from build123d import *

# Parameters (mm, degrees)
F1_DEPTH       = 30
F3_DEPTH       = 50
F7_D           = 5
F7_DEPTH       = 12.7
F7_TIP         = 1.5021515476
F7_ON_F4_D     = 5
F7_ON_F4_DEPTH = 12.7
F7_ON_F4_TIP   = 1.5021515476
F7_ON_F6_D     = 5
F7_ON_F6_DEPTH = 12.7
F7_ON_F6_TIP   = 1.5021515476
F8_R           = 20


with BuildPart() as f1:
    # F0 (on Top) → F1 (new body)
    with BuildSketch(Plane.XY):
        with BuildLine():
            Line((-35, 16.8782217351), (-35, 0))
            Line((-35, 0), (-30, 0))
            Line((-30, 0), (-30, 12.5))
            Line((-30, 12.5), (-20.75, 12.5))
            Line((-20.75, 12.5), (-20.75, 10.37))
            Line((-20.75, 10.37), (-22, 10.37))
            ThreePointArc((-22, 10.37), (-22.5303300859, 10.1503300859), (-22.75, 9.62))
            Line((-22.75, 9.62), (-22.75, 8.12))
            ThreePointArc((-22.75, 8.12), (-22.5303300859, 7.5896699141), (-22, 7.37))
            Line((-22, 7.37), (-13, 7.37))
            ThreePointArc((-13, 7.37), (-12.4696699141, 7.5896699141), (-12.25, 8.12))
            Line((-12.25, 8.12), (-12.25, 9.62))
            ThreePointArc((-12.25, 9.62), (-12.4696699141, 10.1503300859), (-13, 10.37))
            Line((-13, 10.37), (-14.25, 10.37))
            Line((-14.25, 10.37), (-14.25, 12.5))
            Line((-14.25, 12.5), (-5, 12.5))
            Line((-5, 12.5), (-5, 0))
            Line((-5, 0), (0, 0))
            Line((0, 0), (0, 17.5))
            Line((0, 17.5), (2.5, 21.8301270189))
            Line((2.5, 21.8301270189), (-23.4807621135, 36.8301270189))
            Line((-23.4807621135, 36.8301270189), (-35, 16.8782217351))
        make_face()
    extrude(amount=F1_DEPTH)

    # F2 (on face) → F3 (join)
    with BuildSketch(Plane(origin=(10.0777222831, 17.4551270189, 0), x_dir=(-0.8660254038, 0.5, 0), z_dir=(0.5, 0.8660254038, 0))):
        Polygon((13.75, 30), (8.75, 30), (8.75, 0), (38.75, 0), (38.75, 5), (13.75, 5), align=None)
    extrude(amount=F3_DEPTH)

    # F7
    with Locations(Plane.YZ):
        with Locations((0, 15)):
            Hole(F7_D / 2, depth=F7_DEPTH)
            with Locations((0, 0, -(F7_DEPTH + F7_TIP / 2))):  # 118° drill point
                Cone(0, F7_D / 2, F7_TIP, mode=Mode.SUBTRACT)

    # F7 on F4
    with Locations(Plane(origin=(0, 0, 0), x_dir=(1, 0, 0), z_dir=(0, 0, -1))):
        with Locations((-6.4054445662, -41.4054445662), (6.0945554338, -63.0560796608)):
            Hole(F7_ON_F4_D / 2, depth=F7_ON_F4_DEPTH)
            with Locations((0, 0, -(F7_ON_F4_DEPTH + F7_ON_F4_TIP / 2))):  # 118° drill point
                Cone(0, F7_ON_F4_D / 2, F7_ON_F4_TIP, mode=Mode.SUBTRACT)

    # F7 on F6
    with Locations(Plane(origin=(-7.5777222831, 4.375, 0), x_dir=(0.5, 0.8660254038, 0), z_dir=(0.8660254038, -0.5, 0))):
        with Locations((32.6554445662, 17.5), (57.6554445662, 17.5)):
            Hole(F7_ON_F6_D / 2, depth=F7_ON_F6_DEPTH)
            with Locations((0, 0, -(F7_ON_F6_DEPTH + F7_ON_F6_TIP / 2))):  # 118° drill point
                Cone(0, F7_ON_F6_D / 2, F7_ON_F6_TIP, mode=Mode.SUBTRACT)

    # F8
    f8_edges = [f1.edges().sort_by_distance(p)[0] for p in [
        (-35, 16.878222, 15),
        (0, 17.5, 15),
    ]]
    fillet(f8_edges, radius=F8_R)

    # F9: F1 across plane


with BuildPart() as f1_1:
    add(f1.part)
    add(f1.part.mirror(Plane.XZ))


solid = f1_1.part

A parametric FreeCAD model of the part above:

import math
import FreeCAD as App
import Part
import Sketcher
from FreeCAD import Vector
Q = App.Units.Quantity


def edges_at(feature, points):
    """Names of the edges that pass closest to the given points."""
    edges = feature.Shape.Edges
    near = lambda p: min(range(len(edges)), key=lambda i: edges[i].distToShape(Part.Vertex(*p))[0])
    return sorted({f"Edge{near(p) + 1}" for p in points})

doc = App.newDocument("Part")
body = doc.addObject("PartDesign::Body", "Body")

# Sketch on XY plane
sketch1 = body.newObject("Sketcher::SketchObject", "Sketch")
sketch1.AttachmentSupport = (doc.getObject("XY_Plane"), [""])
sketch1.MapMode = "FlatFace"
sketch1.addGeometry(Part.LineSegment(Vector(-35, 16.9, 0), Vector(-35, 0, 0)), False)
sketch1.addGeometry(Part.LineSegment(Vector(-35, 0, 0), Vector(-30, 0, 0)), False)
sketch1.addGeometry(Part.LineSegment(Vector(-30, 0, 0), Vector(-30, 12.5, 0)), False)
sketch1.addGeometry(Part.LineSegment(Vector(-30, 12.5, 0), Vector(-20.8, 12.5, 0)), False)
sketch1.addGeometry(Part.LineSegment(Vector(-20.8, 12.5, 0), Vector(-20.8, 10.4, 0)), False)
sketch1.addGeometry(Part.LineSegment(Vector(-20.8, 10.4, 0), Vector(-22, 10.4, 0)), False)
sketch1.addGeometry(Part.ArcOfCircle(Part.Circle(Vector(-22, 9.6, 0), Vector(0, 0, 1), 0.8), math.radians(90), math.radians(180)), False)
sketch1.addGeometry(Part.LineSegment(Vector(-22.8, 9.6, 0), Vector(-22.8, 8.1, 0)), False)
sketch1.addGeometry(Part.ArcOfCircle(Part.Circle(Vector(-22, 8.1, 0), Vector(0, 0, 1), 0.8), math.radians(180), math.radians(270)), False)
sketch1.addGeometry(Part.LineSegment(Vector(-22, 7.4, 0), Vector(-13, 7.4, 0)), False)
sketch1.addGeometry(Part.ArcOfCircle(Part.Circle(Vector(-13, 8.1, 0), Vector(0, 0, 1), 0.8), math.radians(-90), math.radians(0)), False)
sketch1.addGeometry(Part.LineSegment(Vector(-12.2, 8.1, 0), Vector(-12.2, 9.6, 0)), False)
sketch1.addGeometry(Part.ArcOfCircle(Part.Circle(Vector(-13, 9.6, 0), Vector(0, 0, 1), 0.8), math.radians(0), math.radians(90)), False)
sketch1.addGeometry(Part.LineSegment(Vector(-13, 10.4, 0), Vector(-14.2, 10.4, 0)), False)
sketch1.addGeometry(Part.LineSegment(Vector(-14.2, 10.4, 0), Vector(-14.2, 12.5, 0)), False)
sketch1.addGeometry(Part.LineSegment(Vector(-14.2, 12.5, 0), Vector(-5, 12.5, 0)), False)
sketch1.addGeometry(Part.LineSegment(Vector(-5, 12.5, 0), Vector(-5, 0, 0)), False)
sketch1.addGeometry(Part.LineSegment(Vector(-5, 0, 0), Vector(0, 0, 0)), False)
sketch1.addGeometry(Part.LineSegment(Vector(0, 0, 0), Vector(0, 17.5, 0)), False)
sketch1.addGeometry(Part.LineSegment(Vector(0, 17.5, 0), Vector(2.5, 21.8, 0)), False)
sketch1.addGeometry(Part.LineSegment(Vector(2.5, 21.8, 0), Vector(-23.5, 36.8, 0)), False)
sketch1.addGeometry(Part.LineSegment(Vector(-23.5, 36.8, 0), Vector(-35, 16.9, 0)), False)
sketch1.addConstraint(Sketcher.Constraint("Coincident", 0, 2, 1, 1))
sketch1.addConstraint(Sketcher.Constraint("Coincident", 1, 2, 2, 1))
sketch1.addConstraint(Sketcher.Constraint("Coincident", 2, 2, 3, 1))
sketch1.addConstraint(Sketcher.Constraint("Coincident", 3, 2, 4, 1))
sketch1.addConstraint(Sketcher.Constraint("Coincident", 4, 2, 5, 1))
sketch1.addConstraint(Sketcher.Constraint("Tangent", 5, 2, 6, 1))
sketch1.addConstraint(Sketcher.Constraint("Tangent", 6, 2, 7, 1))
sketch1.addConstraint(Sketcher.Constraint("Tangent", 7, 2, 8, 1))
sketch1.addConstraint(Sketcher.Constraint("Tangent", 8, 2, 9, 1))
sketch1.addConstraint(Sketcher.Constraint("Tangent", 9, 2, 10, 1))
sketch1.addConstraint(Sketcher.Constraint("Tangent", 10, 2, 11, 1))
sketch1.addConstraint(Sketcher.Constraint("Tangent", 11, 2, 12, 1))
sketch1.addConstraint(Sketcher.Constraint("Tangent", 12, 2, 13, 1))
sketch1.addConstraint(Sketcher.Constraint("Coincident", 13, 2, 14, 1))
sketch1.addConstraint(Sketcher.Constraint("Coincident", 14, 2, 15, 1))
sketch1.addConstraint(Sketcher.Constraint("Coincident", 15, 2, 16, 1))
sketch1.addConstraint(Sketcher.Constraint("Coincident", 16, 2, 17, 1))
sketch1.addConstraint(Sketcher.Constraint("Coincident", 17, 2, 18, 1))
sketch1.addConstraint(Sketcher.Constraint("Coincident", 18, 2, 19, 1))
sketch1.addConstraint(Sketcher.Constraint("Coincident", 19, 2, 20, 1))
sketch1.addConstraint(Sketcher.Constraint("Coincident", 20, 2, 21, 1))
sketch1.addConstraint(Sketcher.Constraint("Coincident", 21, 2, 0, 1))
sketch1.addConstraint(Sketcher.Constraint("Vertical", 0))
sketch1.addConstraint(Sketcher.Constraint("Horizontal", 1))
sketch1.addConstraint(Sketcher.Constraint("Vertical", 2))
sketch1.addConstraint(Sketcher.Constraint("Horizontal", 3))
sketch1.addConstraint(Sketcher.Constraint("Vertical", 4))
sketch1.addConstraint(Sketcher.Constraint("Horizontal", 5))
sketch1.addConstraint(Sketcher.Constraint("Vertical", 7))
sketch1.addConstraint(Sketcher.Constraint("Horizontal", 9))
sketch1.addConstraint(Sketcher.Constraint("Vertical", 11))
sketch1.addConstraint(Sketcher.Constraint("Horizontal", 13))
sketch1.addConstraint(Sketcher.Constraint("Vertical", 14))
sketch1.addConstraint(Sketcher.Constraint("Horizontal", 15))
sketch1.addConstraint(Sketcher.Constraint("Vertical", 16))
sketch1.addConstraint(Sketcher.Constraint("Horizontal", 17))
sketch1.addConstraint(Sketcher.Constraint("Vertical", 18))
sketch1.addConstraint(Sketcher.Constraint("Coincident", 17, 2, -1, 1))
sketch1.addConstraint(Sketcher.Constraint("Equal", 6, 8))
sketch1.addConstraint(Sketcher.Constraint("Equal", 8, 10))
sketch1.addConstraint(Sketcher.Constraint("Equal", 10, 12))
sketch1.addConstraint(Sketcher.Constraint("PointOnObject", 0, 2, -1))
sketch1.addConstraint(Sketcher.Constraint("Perpendicular", 19, 20))
sketch1.addConstraint(Sketcher.Constraint("Perpendicular", 20, 21))
sketch1.addConstraint(Sketcher.Constraint("Horizontal", 6, 3, 12, 3))
sketch1.addConstraint(Sketcher.Constraint("Horizontal", 3, 2, 14, 2))
sketch1.addConstraint(Sketcher.Constraint("Equal", 5, 13))
sketch1.addConstraint(Sketcher.Constraint("Equal", 3, 15))
sketch1.addConstraint(Sketcher.Constraint("Equal", 1, 17))
sketch1.addConstraint(Sketcher.Constraint("DistanceX", 1, 1, 1, 2, 5.0))
sketch1.addConstraint(Sketcher.Constraint("DistanceX", 9, 1, 9, 2, 9.0))
sketch1.addConstraint(Sketcher.Constraint("Angle", 19, Q("60 deg")))
sketch1.addConstraint(Sketcher.Constraint("Radius", 6, 0.75))
sketch1.addConstraint(Sketcher.Constraint("Distance", 19, 5.0))
sketch1.addConstraint(Sketcher.Constraint("Distance", 20, 30.0))
sketch1.addConstraint(Sketcher.Constraint("DistanceY", 2, 1, 2, 2, 12.5))
sketch1.addConstraint(Sketcher.Constraint("DistanceY", 7, 2, 7, 1, 1.5))
sketch1.addConstraint(Sketcher.Constraint("DistanceY", 18, 1, 18, 2, 17.5))
sketch1.addConstraint(Sketcher.Constraint("DistanceX", 6, 3, -1, 1, 22.0))
sketch1.addConstraint(Sketcher.Constraint("DistanceX", 6, 2, 4, 2, 2.0))
sketch1.addConstraint(Sketcher.Constraint("DistanceY", 4, 2, 4, 1, 2.13))
pad1 = body.newObject("PartDesign::Pad", "Pad")
pad1.Profile = sketch1
pad1.Length = 30

# Sketch on an angled plane
sketch2 = body.newObject("Sketcher::SketchObject", "Sketch001")
sketch2.Placement = App.Placement(Vector(10.077722, 17.455127, 0), App.Rotation(Vector(-0.866025404, 0.5, 0), Vector(0, 0, 1), Vector(0.5, 0.866025404, 0), "ZXY"))
sketch2.addGeometry(Part.LineSegment(Vector(14, 30, 0), Vector(9, 30, 0)), False)
sketch2.addGeometry(Part.LineSegment(Vector(9, 30, 0), Vector(9, 0, 0)), False)
sketch2.addGeometry(Part.LineSegment(Vector(9, 0, 0), Vector(39, 0, 0)), False)
sketch2.addGeometry(Part.LineSegment(Vector(39, 0, 0), Vector(39, 5, 0)), False)
sketch2.addGeometry(Part.LineSegment(Vector(39, 5, 0), Vector(14, 5, 0)), False)
sketch2.addGeometry(Part.LineSegment(Vector(14, 5, 0), Vector(14, 30, 0)), False)
sketch2.addConstraint(Sketcher.Constraint("Coincident", 0, 2, 1, 1))
sketch2.addConstraint(Sketcher.Constraint("Coincident", 1, 2, 2, 1))
sketch2.addConstraint(Sketcher.Constraint("Coincident", 2, 2, 3, 1))
sketch2.addConstraint(Sketcher.Constraint("Coincident", 3, 2, 4, 1))
sketch2.addConstraint(Sketcher.Constraint("Coincident", 4, 2, 5, 1))
sketch2.addConstraint(Sketcher.Constraint("Coincident", 5, 2, 0, 1))
sketch2.addConstraint(Sketcher.Constraint("Horizontal", 0))
sketch2.addConstraint(Sketcher.Constraint("Vertical", 1))
sketch2.addConstraint(Sketcher.Constraint("Horizontal", 2))
sketch2.addConstraint(Sketcher.Constraint("Vertical", 3))
sketch2.addConstraint(Sketcher.Constraint("Horizontal", 4))
sketch2.addConstraint(Sketcher.Constraint("Vertical", 5))
sketch2.addConstraint(Sketcher.Constraint("PointOnObject", 1, 2, -1))
sketch2.addConstraint(Sketcher.Constraint("Equal", 2, 1))
sketch2.addConstraint(Sketcher.Constraint("Equal", 0, 3))
sketch2.addConstraint(Sketcher.Constraint("DistanceX", 0, 2, 0, 1, 5.0))
sketch2.addConstraint(Sketcher.Constraint("DistanceX", 2, 1, 2, 2, 30.0))
sketch2.addConstraint(Sketcher.Constraint("DistanceX", -1, 1, 0, 2, 8.75))
pad2 = body.newObject("PartDesign::Pad", "Pad001")
pad2.Profile = sketch2
pad2.Length = 50

# Sketch on YZ plane
sketch3 = body.newObject("Sketcher::SketchObject", "Sketch002")
sketch3.AttachmentSupport = (doc.getObject("YZ_Plane"), [""])
sketch3.MapMode = "FlatFace"
sketch3.addGeometry(Part.Circle(Vector(0, 15, 0), Vector(0, 0, 1), 2.5), False)
sketch3.addConstraint(Sketcher.Constraint("PointOnObject", 0, 3, -2))
sketch3.addConstraint(Sketcher.Constraint("Diameter", 0, 5.0))
sketch3.addConstraint(Sketcher.Constraint("DistanceY", -1, 1, 0, 3, 15.0))
doc.recompute()
hole = body.newObject("PartDesign::Hole", "Hole")
hole.Profile = sketch3
hole.ThreadType = "None"
hole.Diameter = 5
hole.DepthType = "Dimension"
hole.Depth = 12.7
hole.DrillPoint = "Angled"
hole.DrillPointAngle = 118

# Sketch on XY plane
sketch4 = body.newObject("Sketcher::SketchObject", "Sketch003")
sketch4.AttachmentSupport = (doc.getObject("XY_Plane"), [""])
sketch4.MapMode = "FlatFace"
sketch4.addGeometry(Part.Circle(Vector(-6.4, 41.4, 0), Vector(0, 0, 1), 2.5), False)
sketch4.addGeometry(Part.Circle(Vector(6.1, 63.1, 0), Vector(0, 0, 1), 2.5), False)
sketch4.addConstraint(Sketcher.Constraint("Equal", 0, 1))
sketch4.addConstraint(Sketcher.Constraint("Diameter", 0, 5.0))
sketch4.addConstraint(Sketcher.Constraint("DistanceX", 0, 3, 1, 3, 12.5))
sketch4.addConstraint(Sketcher.Constraint("DistanceY", -1, 1, 1, 3, 63.05608))
sketch4.addConstraint(Sketcher.Constraint("DistanceX", 0, 3, -1, 1, 6.405445))
sketch4.addConstraint(Sketcher.Constraint("DistanceY", -1, 1, 0, 3, 41.405445))
doc.recompute()
hole2 = body.newObject("PartDesign::Hole", "Hole001")
hole2.Profile = sketch4
hole2.ThreadType = "None"
hole2.Diameter = 5
hole2.DepthType = "Dimension"
hole2.Depth = 12.7
hole2.DrillPoint = "Angled"
hole2.DrillPointAngle = 118
hole2.Reversed = True

# Sketch on an angled plane
sketch5 = body.newObject("Sketcher::SketchObject", "Sketch004")
sketch5.Placement = App.Placement(Vector(-7.577722, 4.375, 0), App.Rotation(Vector(0.5, 0.866025404, 0), Vector(0, 0, 1), Vector(0.866025404, -0.5, 0), "ZXY"))
sketch5.addGeometry(Part.Circle(Vector(32.7, 17.5, 0), Vector(0, 0, 1), 2.5), False)
sketch5.addGeometry(Part.Circle(Vector(57.7, 17.5, 0), Vector(0, 0, 1), 2.5), False)
sketch5.addConstraint(Sketcher.Constraint("Equal", 0, 1))
sketch5.addConstraint(Sketcher.Constraint("Horizontal", 0, 3, 1, 3))
sketch5.addConstraint(Sketcher.Constraint("Diameter", 0, 5.0))
sketch5.addConstraint(Sketcher.Constraint("DistanceX", 0, 3, 1, 3, 25.0))
sketch5.addConstraint(Sketcher.Constraint("DistanceY", -1, 1, 0, 3, 17.5))
sketch5.addConstraint(Sketcher.Constraint("DistanceX", -1, 1, 0, 3, 32.655445))
doc.recompute()
hole3 = body.newObject("PartDesign::Hole", "Hole002")
hole3.Profile = sketch5
hole3.ThreadType = "None"
hole3.Diameter = 5
hole3.DepthType = "Dimension"
hole3.Depth = 12.7
hole3.DrillPoint = "Angled"
hole3.DrillPointAngle = 118
doc.recompute()

fillet = body.newObject("PartDesign::Fillet", "Fillet")
fillet.Base = (hole3, edges_at(hole3, [(-35, 16.878, 15), (0, 17.5, 15)]))
fillet.Radius = 20
body2 = doc.addObject("PartDesign::Body", "Body001")
doc.recompute()

body2.BaseFeature = body
doc.recompute()

mirroring = doc.addObject("Part::Mirroring", "Mirroring")
mirroring.Source = body
mirroring.Base = Vector(0, 0, 0)
mirroring.Normal = Vector(0, -1, 0)
body3 = doc.addObject("PartDesign::Body", "Body002")
body3.BaseFeature = mirroring
boolean = body2.newObject("PartDesign::Boolean", "Boolean")
boolean.Type = "Fuse"
boolean.addObjects([body3])
doc.recompute()
mirroring.Visibility = False

doc.recompute()
